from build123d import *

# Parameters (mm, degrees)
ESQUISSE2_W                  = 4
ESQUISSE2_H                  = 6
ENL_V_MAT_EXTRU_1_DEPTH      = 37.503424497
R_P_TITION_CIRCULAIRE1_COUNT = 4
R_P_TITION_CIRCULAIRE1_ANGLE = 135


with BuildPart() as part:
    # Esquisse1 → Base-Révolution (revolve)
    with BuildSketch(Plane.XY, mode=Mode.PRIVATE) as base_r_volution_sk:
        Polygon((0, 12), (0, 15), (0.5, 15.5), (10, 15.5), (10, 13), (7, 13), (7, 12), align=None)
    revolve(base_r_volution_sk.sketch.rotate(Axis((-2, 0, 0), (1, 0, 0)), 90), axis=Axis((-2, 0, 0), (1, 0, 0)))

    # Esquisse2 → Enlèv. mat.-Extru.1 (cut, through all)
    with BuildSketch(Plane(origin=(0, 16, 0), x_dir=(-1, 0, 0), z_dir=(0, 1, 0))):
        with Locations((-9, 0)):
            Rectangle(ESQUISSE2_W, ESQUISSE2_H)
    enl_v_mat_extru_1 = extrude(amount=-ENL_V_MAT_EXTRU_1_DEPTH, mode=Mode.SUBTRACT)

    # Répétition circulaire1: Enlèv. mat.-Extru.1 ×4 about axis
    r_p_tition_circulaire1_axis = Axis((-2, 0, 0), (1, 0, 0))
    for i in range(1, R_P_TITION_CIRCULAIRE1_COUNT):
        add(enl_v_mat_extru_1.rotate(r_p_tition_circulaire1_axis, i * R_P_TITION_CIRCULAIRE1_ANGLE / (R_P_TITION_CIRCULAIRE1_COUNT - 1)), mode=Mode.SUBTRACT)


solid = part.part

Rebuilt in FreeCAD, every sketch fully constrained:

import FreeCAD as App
import Part
import Sketcher

V = App.Vector
Q = App.Units.Quantity

doc = App.newDocument("Part")
params = doc.addObject("Spreadsheet::Sheet", "Params")
for row, (alias, value) in enumerate([
    ("sketch1_width", "7 mm"),
    ("sketch1_width2", "3 mm"),
    ("sketch1_height", "1 mm"),
    ("sketch1_width3", "9.5 mm"),
    ("revolution_angle", "360 deg"),
    ("sketch2_width", "4 mm"),
    ("sketch2_height", "6 mm"),
], start=1):
    params.set(f"A{row}", alias)
    params.set(f"B{row}", "=" + value)
    params.setAlias(f"B{row}", alias)

body = doc.addObject("PartDesign::Body", "Body")

# Sketch on XY plane
sketch1 = body.newObject("Sketcher::SketchObject", "Sketch")
sketch1.AttachmentSupport = (doc.getObject("XY_Plane"), [""])
sketch1.MapMode = "FlatFace"
sketch1.addGeometry([
    Part.LineSegment(V(0, 15, 0), V(0, 12, 0)),  # 0
    Part.LineSegment(V(0, 12, 0), V(7, 12, 0)),  # 1
    Part.LineSegment(V(7, 12, 0), V(7, 13, 0)),  # 2
    Part.LineSegment(V(7, 13, 0), V(10, 13, 0)),  # 3
    Part.LineSegment(V(10, 13, 0), V(10, 15.5, 0)),  # 4
    Part.LineSegment(V(10, 15.5, 0), V(0.5, 15.5, 0)),  # 5
    Part.LineSegment(V(0.5, 15.5, 0), V(0, 15, 0)),  # 6
], False)
sketch1.addConstraint([
    Sketcher.Constraint("Coincident", 0, 2, 1, 1),
    Sketcher.Constraint("Coincident", 1, 2, 2, 1),
    Sketcher.Constraint("Coincident", 2, 2, 3, 1),
    Sketcher.Constraint("Coincident", 3, 2, 4, 1),
    Sketcher.Constraint("Coincident", 4, 2, 5, 1),
    Sketcher.Constraint("Coincident", 5, 2, 6, 1),
    Sketcher.Constraint("Coincident", 6, 2, 0, 1),
    Sketcher.Constraint("Vertical", 0),
    Sketcher.Constraint("Horizontal", 1),
    Sketcher.Constraint("Vertical", 2),
    Sketcher.Constraint("Horizontal", 3),
    Sketcher.Constraint("Vertical", 4),
    Sketcher.Constraint("Horizontal", 5),
    Sketcher.Constraint("PointOnObject", 0, 2, -2),
    Sketcher.Constraint("Equal", 3, 0),
    Sketcher.Constraint("DistanceX", 1, 1, 1, 2, Q("7 mm")),
    Sketcher.Constraint("DistanceX", 3, 1, 3, 2, Q("3 mm")),
    Sketcher.Constraint("DistanceY", 2, 1, 2, 2, Q("1 mm")),
    Sketcher.Constraint("Angle", 6, Q("-135 deg")),
    Sketcher.Constraint("DistanceX", 5, 2, 5, 1, Q("9.5 mm")),
    Sketcher.Constraint("DistanceY", -1, 1, 0, 2, Q("12 mm")),
])
sketch1.setExpression("Constraints[15]", "Params.sketch1_width")
sketch1.setExpression("Constraints[16]", "Params.sketch1_width2")
sketch1.setExpression("Constraints[17]", "Params.sketch1_height")
sketch1.setExpression("Constraints[19]", "Params.sketch1_width3")
revolution = body.newObject("PartDesign::Revolution", "Revolution")
revolution.Profile = sketch1
revolution.ReferenceAxis = (sketch1, ["H_Axis"])
revolution.setExpression("Angle", "Params.revolution_angle")

# Sketch on XZ plane
sketch2 = body.newObject("Sketcher::SketchObject", "Sketch001")
sketch2.AttachmentSupport = (doc.getObject("XZ_Plane"), [""])
sketch2.MapMode = "FlatFace"
sketch2.AttachmentOffset = App.Placement(V(0, 0, -16), App.Rotation())
sketch2.addGeometry([
    Part.LineSegment(V(11, 3, 0), V(11, -3, 0)),
    Part.LineSegment(V(11, -3, 0), V(7, -3, 0)),
    Part.LineSegment(V(7, -3, 0), V(7, 3, 0)),
    Part.LineSegment(V(7, 3, 0), V(11, 3, 0)),
], False)
sketch2.addConstraint([
    Sketcher.Constraint("Coincident", 0, 2, 1, 1),
    Sketcher.Constraint("Coincident", 1, 2, 2, 1),
    Sketcher.Constraint("Coincident", 2, 2, 3, 1),
    Sketcher.Constraint("Coincident", 3, 2, 0, 1),
    Sketcher.Constraint("Vertical", 0),
    Sketcher.Constraint("Horizontal", 1),
    Sketcher.Constraint("Vertical", 2),
    Sketcher.Constraint("Horizontal", 3),
    Sketcher.Constraint("DistanceX", 1, 2, 1, 1, Q("4 mm")),
    Sketcher.Constraint("DistanceY", 0, 2, 0, 1, Q("6 mm")),
    Sketcher.Constraint("DistanceX", -1, 1, 0, 2, Q("11 mm")),
    Sketcher.Constraint("DistanceY", 0, 2, -1, 1, Q("3 mm")),
])
sketch2.setExpression("Constraints[8]", "Params.sketch2_width")
sketch2.setExpression("Constraints[9]", "Params.sketch2_height")
pocket1 = body.newObject("PartDesign::Pocket", "Pocket")
pocket1.Profile = sketch2
pocket1.Type = "ThroughAll"
pocket1.Reversed = True
doc.recompute()

polarpattern = body.newObject("PartDesign::PolarPattern", "PolarPattern")
polarpattern.Originals = [pocket1]
polarpattern.Axis = (doc.getObject("X_Axis"), [""])
polarpattern.Angle = 135
polarpattern.Occurrences = 4
body.Tip = polarpattern

doc.recompute()
